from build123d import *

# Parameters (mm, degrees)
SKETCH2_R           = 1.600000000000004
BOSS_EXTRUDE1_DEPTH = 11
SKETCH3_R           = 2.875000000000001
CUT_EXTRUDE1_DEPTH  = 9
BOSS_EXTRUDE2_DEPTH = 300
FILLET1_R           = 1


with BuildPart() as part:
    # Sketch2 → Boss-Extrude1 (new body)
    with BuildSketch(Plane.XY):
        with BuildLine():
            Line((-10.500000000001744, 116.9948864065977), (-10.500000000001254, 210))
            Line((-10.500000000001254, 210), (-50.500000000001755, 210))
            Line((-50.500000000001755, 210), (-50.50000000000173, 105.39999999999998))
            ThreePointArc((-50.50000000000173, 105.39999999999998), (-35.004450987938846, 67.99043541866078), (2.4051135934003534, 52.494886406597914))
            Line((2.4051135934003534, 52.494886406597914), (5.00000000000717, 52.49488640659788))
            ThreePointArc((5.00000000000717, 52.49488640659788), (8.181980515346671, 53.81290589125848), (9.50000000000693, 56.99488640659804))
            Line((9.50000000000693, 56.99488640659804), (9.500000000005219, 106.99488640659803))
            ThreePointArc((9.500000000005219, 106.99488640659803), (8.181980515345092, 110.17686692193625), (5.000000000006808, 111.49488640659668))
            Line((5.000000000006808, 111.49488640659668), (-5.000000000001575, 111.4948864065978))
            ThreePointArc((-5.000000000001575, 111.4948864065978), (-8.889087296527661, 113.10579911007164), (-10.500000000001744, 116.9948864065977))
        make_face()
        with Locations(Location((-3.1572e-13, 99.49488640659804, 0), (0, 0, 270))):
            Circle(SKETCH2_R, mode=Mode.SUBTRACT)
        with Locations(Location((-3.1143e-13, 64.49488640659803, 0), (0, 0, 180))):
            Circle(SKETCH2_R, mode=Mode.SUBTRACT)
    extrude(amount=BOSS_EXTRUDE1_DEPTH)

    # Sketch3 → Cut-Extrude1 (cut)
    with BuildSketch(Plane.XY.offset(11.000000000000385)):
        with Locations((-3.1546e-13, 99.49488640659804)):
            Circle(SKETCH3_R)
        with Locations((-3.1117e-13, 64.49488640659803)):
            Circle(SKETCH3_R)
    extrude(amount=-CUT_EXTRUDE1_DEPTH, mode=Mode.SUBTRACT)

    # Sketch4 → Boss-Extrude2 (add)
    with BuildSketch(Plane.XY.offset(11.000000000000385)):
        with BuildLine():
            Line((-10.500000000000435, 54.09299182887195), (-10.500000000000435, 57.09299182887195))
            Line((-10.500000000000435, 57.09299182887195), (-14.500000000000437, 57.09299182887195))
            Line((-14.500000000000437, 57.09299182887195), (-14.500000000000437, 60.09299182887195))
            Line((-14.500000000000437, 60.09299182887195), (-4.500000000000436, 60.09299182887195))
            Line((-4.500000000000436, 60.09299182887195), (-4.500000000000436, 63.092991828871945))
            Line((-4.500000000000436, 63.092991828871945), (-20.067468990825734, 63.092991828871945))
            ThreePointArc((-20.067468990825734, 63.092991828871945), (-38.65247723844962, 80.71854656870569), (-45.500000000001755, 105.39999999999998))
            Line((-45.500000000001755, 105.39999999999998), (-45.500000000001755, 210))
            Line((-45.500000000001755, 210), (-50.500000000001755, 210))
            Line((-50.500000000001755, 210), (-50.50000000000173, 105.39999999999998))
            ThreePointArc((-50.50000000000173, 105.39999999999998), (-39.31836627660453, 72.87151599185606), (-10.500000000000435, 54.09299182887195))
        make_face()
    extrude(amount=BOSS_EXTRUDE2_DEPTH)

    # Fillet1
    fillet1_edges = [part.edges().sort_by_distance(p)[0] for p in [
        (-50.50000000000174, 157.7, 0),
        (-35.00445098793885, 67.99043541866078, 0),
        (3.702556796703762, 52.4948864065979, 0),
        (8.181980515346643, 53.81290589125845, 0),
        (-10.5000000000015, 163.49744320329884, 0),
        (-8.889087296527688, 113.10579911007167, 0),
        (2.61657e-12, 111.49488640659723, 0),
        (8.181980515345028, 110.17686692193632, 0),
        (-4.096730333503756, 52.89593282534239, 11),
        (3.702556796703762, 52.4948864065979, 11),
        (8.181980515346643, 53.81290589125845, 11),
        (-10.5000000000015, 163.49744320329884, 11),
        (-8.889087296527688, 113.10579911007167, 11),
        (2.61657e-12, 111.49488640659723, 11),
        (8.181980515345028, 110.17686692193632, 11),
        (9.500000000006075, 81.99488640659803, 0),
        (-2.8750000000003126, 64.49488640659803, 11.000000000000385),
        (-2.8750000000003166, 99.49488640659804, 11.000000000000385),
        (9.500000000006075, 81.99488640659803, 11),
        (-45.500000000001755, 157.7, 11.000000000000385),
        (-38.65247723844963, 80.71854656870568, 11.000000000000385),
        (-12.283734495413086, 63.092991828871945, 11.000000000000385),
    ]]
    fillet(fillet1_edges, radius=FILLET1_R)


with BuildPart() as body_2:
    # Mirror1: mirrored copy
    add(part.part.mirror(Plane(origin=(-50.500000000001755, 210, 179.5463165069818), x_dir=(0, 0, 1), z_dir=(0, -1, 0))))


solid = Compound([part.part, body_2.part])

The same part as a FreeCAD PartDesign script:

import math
import FreeCAD as App
import Part
import Sketcher
from FreeCAD import Vector
Q = App.Units.Quantity


def edges_at(feature, points):
    """Names of the edges that pass closest to the given points."""
    edges = feature.Shape.Edges
    near = lambda p: min(range(len(edges)), key=lambda i: edges[i].distToShape(Part.Vertex(*p))[0])
    return sorted({f"Edge{near(p) + 1}" for p in points})

doc = App.newDocument("Part")
params = doc.addObject("Spreadsheet::Sheet", "Params")
for row, (alias, value) in enumerate([
    ("sketch1_diameter", "3.2 mm"),
    ("sketch1_radius", "4.5 mm"),
    ("sketch1_radius2", "5.5 mm"),
    ("sketch1_width", "40 mm"),
    ("sketch1_width2", "10 mm"),
    ("pad1_length", "11 mm"),
    ("sketch2_diameter", "5.75 mm"),
    ("pocket1_length", "9 mm"),
    ("sketch3_width", "4 mm"),
    ("sketch3_width2", "10 mm"),
    ("sketch3_width3", "5 mm"),
    ("sketch3_height", "3 mm"),
    ("sketch3_height2", "104.6 mm"),
    ("pad2_length", "300 mm"),
    ("fillet_radius", "1 mm"),
], start=1):
    params.set(f"A{row}", alias)
    params.set(f"B{row}", "=" + value)
    params.setAlias(f"B{row}", alias)

body = doc.addObject("PartDesign::Body", "Body")

# Sketch on XY plane
sketch1 = doc.addObject("Sketcher::SketchObject", "Sketch")
body.addObject(sketch1)
sketch1.AttachmentSupport = (doc.XY_Plane, [""])
sketch1.MapMode = "FlatFace"
sketch1.addGeometry([
    Part.LineSegment(Vector(-10.5, 116.994886, 0), Vector(-10.5, 210, 0)),  # 0
    Part.LineSegment(Vector(-10.5, 210, 0), Vector(-50.5, 210, 0)),  # 1
    Part.LineSegment(Vector(-50.5, 210, 0), Vector(-50.5, 105.4, 0)),  # 2
    Part.ArcOfCircle(Part.Circle(Vector(2.405114, 105.4, 0), Vector(0, 0, 1), 52.905114), math.radians(180), math.radians(270)),  # 3
    Part.LineSegment(Vector(2.405114, 52.494886, 0), Vector(5, 52.494886, 0)),  # 4
    Part.ArcOfCircle(Part.Circle(Vector(5, 56.994886, 0), Vector(0, 0, 1), 4.5), math.radians(-90), math.radians(0)),  # 5
    Part.LineSegment(Vector(9.5, 56.994886, 0), Vector(9.5, 106.994886, 0)),  # 6
    Part.ArcOfCircle(Part.Circle(Vector(5, 106.994886, 0), Vector(0, 0, 1), 4.5), math.radians(0), math.radians(90)),  # 7
    Part.LineSegment(Vector(5, 111.494886, 0), Vector(-5, 111.494886, 0)),  # 8
    Part.ArcOfCircle(Part.Circle(Vector(-5, 116.994886, 0), Vector(0, 0, 1), 5.5), math.radians(180), math.radians(270)),  # 9
    Part.Circle(Vector(0, 64.494886, 0), Vector(0, 0, 1), 1.6),  # 10
    Part.Circle(Vector(0, 99.494886, 0), Vector(0, 0, 1), 1.6),  # 11
], False)
sketch1.addConstraint([
    Sketcher.Constraint("Coincident", 0, 2, 1, 1),
    Sketcher.Constraint("Coincident", 1, 2, 2, 1),
    Sketcher.Constraint("Tangent", 2, 2, 3, 1),
    Sketcher.Constraint("Tangent", 3, 2, 4, 1),
    Sketcher.Constraint("Tangent", 4, 2, 5, 1),
    Sketcher.Constraint("Tangent", 5, 2, 6, 1),
    Sketcher.Constraint("Tangent", 6, 2, 7, 1),
    Sketcher.Constraint("Tangent", 7, 2, 8, 1),
    Sketcher.Constraint("Tangent", 8, 2, 9, 2),
    Sketcher.Constraint("Tangent", 9, 1, 0, 1),
    Sketcher.Constraint("Vertical", 0),
    Sketcher.Constraint("Horizontal", 1),
    Sketcher.Constraint("Vertical", 2),
    Sketcher.Constraint("Horizontal", 4),
    Sketcher.Constraint("Vertical", 6),
    Sketcher.Constraint("Horizontal", 8),
    Sketcher.Constraint("Equal", 5, 7),
    Sketcher.Constraint("Equal", 10, 11),
    Sketcher.Constraint("PointOnObject", 10, 3, -2),
    Sketcher.Constraint("PointOnObject", 11, 3, -2),
    Sketcher.Constraint("Diameter", 10, Q("3.2 mm")),
    Sketcher.Constraint("Radius", 5, Q("4.5 mm")),
    Sketcher.Constraint("Radius", 9, Q("5.5 mm")),
    Sketcher.Constraint("DistanceX", 1, 2, 1, 1, Q("40 mm")),
    Sketcher.Constraint("DistanceX", 8, 2, 8, 1, Q("10 mm")),
    Sketcher.Constraint("DistanceY", 6, 1, 6, 2, Q("50 mm")),
    Sketcher.Constraint("DistanceY", 2, 2, 2, 1, Q("104.6 mm")),
    Sketcher.Constraint("DistanceX", -1, 1, 5, 3, Q("5 mm")),
    Sketcher.Constraint("DistanceY", -1, 1, 0, 2, Q("210 mm")),
    Sketcher.Constraint("DistanceY", 10, 3, 11, 3, Q("35 mm")),
    Sketcher.Constraint("DistanceY", 3, 2, 10, 3, Q("12 mm")),
    Sketcher.Constraint("Radius", 3, Q("52.905114 mm")),
])
sketch1.setExpression("Constraints[20]", "Params.sketch1_diameter")
sketch1.setExpression("Constraints[21]", "Params.sketch1_radius")
sketch1.setExpression("Constraints[22]", "Params.sketch1_radius2")
sketch1.setExpression("Constraints[23]", "Params.sketch1_width")
sketch1.setExpression("Constraints[24]", "Params.sketch1_width2")
pad1 = doc.addObject("PartDesign::Pad", "Pad")
body.addObject(pad1)
pad1.Profile = sketch1
pad1.setExpression("Length", "Params.pad1_length")

# Sketch on XY plane
sketch2 = doc.addObject("Sketcher::SketchObject", "Sketch001")
body.addObject(sketch2)
sketch2.AttachmentSupport = (doc.XY_Plane, [""])
sketch2.MapMode = "FlatFace"
sketch2.AttachmentOffset = App.Placement(Vector(0, 0, 11), App.Rotation())
sketch2.addGeometry([
    Part.Circle(Vector(0, 99.494886, 0), Vector(0, 0, 1), 2.875),
    Part.Circle(Vector(0, 64.494886, 0), Vector(0, 0, 1), 2.875),
], False)
sketch2.addConstraint([
    Sketcher.Constraint("Equal", 0, 1),
    Sketcher.Constraint("PointOnObject", 0, 3, -2),
    Sketcher.Constraint("PointOnObject", 1, 3, -2),
    Sketcher.Constraint("Diameter", 0, Q("5.75 mm")),
    Sketcher.Constraint("DistanceY", 1, 3, 0, 3, Q("35 mm")),
    Sketcher.Constraint("DistanceY", -1, 1, 0, 3, Q("99.494886 mm")),
])
sketch2.setExpression("Constraints[3]", "Params.sketch2_diameter")
pocket1 = doc.addObject("PartDesign::Pocket", "Pocket")
body.addObject(pocket1)
pocket1.Profile = sketch2
pocket1.setExpression("Length", "Params.pocket1_length")

# Sketch on XY plane
sketch3 = doc.addObject("Sketcher::SketchObject", "Sketch002")
body.addObject(sketch3)
sketch3.AttachmentSupport = (doc.XY_Plane, [""])
sketch3.MapMode = "FlatFace"
sketch3.AttachmentOffset = App.Placement(Vector(0, 0, 11), App.Rotation())
sketch3.addGeometry([
    Part.LineSegment(Vector(-10.5, 54.092992, 0), Vector(-10.5, 57.092992, 0)),  # 0
    Part.LineSegment(Vector(-10.5, 57.092992, 0), Vector(-14.5, 57.092992, 0)),  # 1
    Part.LineSegment(Vector(-14.5, 57.092992, 0), Vector(-14.5, 60.092992, 0)),  # 2
    Part.LineSegment(Vector(-14.5, 60.092992, 0), Vector(-4.5, 60.092992, 0)),  # 3
    Part.LineSegment(Vector(-4.5, 60.092992, 0), Vector(-4.5, 63.092992, 0)),  # 4
    Part.LineSegment(Vector(-4.5, 63.092992, 0), Vector(-20.067469, 63.092992, 0)),  # 5
    Part.ArcOfCircle(Part.Circle(Vector(2.405114, 105.4, 0), Vector(0, 0, 1), 47.905114), math.radians(180), math.radians(242.023711)),  # 6
    Part.LineSegment(Vector(-45.5, 105.4, 0), Vector(-45.5, 210, 0)),  # 7
    Part.LineSegment(Vector(-45.5, 210, 0), Vector(-50.5, 210, 0)),  # 8
    Part.LineSegment(Vector(-50.5, 210, 0), Vector(-50.5, 105.4, 0)),  # 9
    Part.ArcOfCircle(Part.Circle(Vector(2.405114, 105.4, 0), Vector(0, 0, 1), 52.905114), math.radians(180), math.radians(255.881425)),  # 10
], False)
sketch3.addConstraint([
    Sketcher.Constraint("Coincident", 0, 2, 1, 1),
    Sketcher.Constraint("Coincident", 1, 2, 2, 1),
    Sketcher.Constraint("Coincident", 2, 2, 3, 1),
    Sketcher.Constraint("Coincident", 3, 2, 4, 1),
    Sketcher.Constraint("Coincident", 4, 2, 5, 1),
    Sketcher.Constraint("Coincident", 5, 2, 6, 2),
    Sketcher.Constraint("Tangent", 6, 1, 7, 1),
    Sketcher.Constraint("Coincident", 7, 2, 8, 1),
    Sketcher.Constraint("Coincident", 8, 2, 9, 1),
    Sketcher.Constraint("Tangent", 9, 2, 10, 1),
    Sketcher.Constraint("Coincident", 10, 2, 0, 1),
    Sketcher.Constraint("Vertical", 0),
    Sketcher.Constraint("Horizontal", 1),
    Sketcher.Constraint("Vertical", 2),
    Sketcher.Constraint("Horizontal", 3),
    Sketcher.Constraint("Vertical", 4),
    Sketcher.Constraint("Horizontal", 5),
    Sketcher.Constraint("Vertical", 7),
    Sketcher.Constraint("Horizontal", 8),
    Sketcher.Constraint("Vertical", 9),
    Sketcher.Constraint("Coincident", 10, 3, 6, 3),
    Sketcher.Constraint("Equal", 0, 2),
    Sketcher.Constraint("Equal", 2, 4),
    Sketcher.Constraint("DistanceX", 1, 2, 1, 1, Q("4 mm")),
    Sketcher.Constraint("DistanceX", 3, 1, 3, 2, Q("10 mm")),
    Sketcher.Constraint("DistanceX", 8, 2, 8, 1, Q("5 mm")),
    Sketcher.Constraint("DistanceY", 0, 1, 0, 2, Q("3 mm")),
    Sketcher.Constraint("DistanceY", 7, 1, 7, 2, Q("104.6 mm")),
    Sketcher.Constraint("DistanceY", -1, 1, 7, 2, Q("210 mm")),
    Sketcher.Constraint("DistanceX", 6, 1, 2, 2, Q("31 mm")),
    Sketcher.Constraint("DistanceX", 0, 2, -1, 1, Q("10.5 mm")),
    Sketcher.Constraint("Radius", 6, Q("47.905114 mm")),
])
sketch3.setExpression("Constraints[23]", "Params.sketch3_width")
sketch3.setExpression("Constraints[24]", "Params.sketch3_width2")
sketch3.setExpression("Constraints[25]", "Params.sketch3_width3")
sketch3.setExpression("Constraints[26]", "Params.sketch3_height")
sketch3.setExpression("Constraints[27]", "Params.sketch3_height2")
pad2 = doc.addObject("PartDesign::Pad", "Pad001")
body.addObject(pad2)
pad2.Profile = sketch3
pad2.setExpression("Length", "Params.pad2_length")
doc.recompute()

fillet = doc.addObject("PartDesign::Fillet", "Fillet")
body.addObject(fillet)
fillet.Base = (pad2, edges_at(pad2, [
    (-50.5, 157.7, 0),
    (-35.004, 67.99, 0),
    (3.703, 52.495, 0),
    (8.182, 53.813, 0),
    (-10.5, 163.497, 0),
    (-8.889, 113.106, 0),
    (0, 111.495, 0),
    (8.182, 110.177, 0),
    (-4.097, 52.896, 11),
    (3.703, 52.495, 11),
    (8.182, 53.813, 11),
    (-10.5, 163.497, 11),
    (-8.889, 113.106, 11),
    (0, 111.495, 11),
    (8.182, 110.177, 11),
    (9.5, 81.995, 0),
    (-2.875, 64.495, 11),
    (-2.875, 99.495, 11),
    (9.5, 81.995, 11),
    (-45.5, 157.7, 11),
    (-38.652, 80.719, 11),
    (-12.284, 63.093, 11),
]))
fillet.setExpression("Radius", "Params.fillet_radius")
body2 = doc.addObject("PartDesign::Body", "Body001")
doc.recompute()

mirroring = doc.addObject("Part::Mirroring", "Mirroring")
mirroring.Source = body
mirroring.Base = Vector(-50.5, 210, 179.546317)
mirroring.Normal = Vector(0, -1, 0)
body2.BaseFeature = mirroring
doc.recompute()
mirroring.Visibility = False

doc.recompute()
